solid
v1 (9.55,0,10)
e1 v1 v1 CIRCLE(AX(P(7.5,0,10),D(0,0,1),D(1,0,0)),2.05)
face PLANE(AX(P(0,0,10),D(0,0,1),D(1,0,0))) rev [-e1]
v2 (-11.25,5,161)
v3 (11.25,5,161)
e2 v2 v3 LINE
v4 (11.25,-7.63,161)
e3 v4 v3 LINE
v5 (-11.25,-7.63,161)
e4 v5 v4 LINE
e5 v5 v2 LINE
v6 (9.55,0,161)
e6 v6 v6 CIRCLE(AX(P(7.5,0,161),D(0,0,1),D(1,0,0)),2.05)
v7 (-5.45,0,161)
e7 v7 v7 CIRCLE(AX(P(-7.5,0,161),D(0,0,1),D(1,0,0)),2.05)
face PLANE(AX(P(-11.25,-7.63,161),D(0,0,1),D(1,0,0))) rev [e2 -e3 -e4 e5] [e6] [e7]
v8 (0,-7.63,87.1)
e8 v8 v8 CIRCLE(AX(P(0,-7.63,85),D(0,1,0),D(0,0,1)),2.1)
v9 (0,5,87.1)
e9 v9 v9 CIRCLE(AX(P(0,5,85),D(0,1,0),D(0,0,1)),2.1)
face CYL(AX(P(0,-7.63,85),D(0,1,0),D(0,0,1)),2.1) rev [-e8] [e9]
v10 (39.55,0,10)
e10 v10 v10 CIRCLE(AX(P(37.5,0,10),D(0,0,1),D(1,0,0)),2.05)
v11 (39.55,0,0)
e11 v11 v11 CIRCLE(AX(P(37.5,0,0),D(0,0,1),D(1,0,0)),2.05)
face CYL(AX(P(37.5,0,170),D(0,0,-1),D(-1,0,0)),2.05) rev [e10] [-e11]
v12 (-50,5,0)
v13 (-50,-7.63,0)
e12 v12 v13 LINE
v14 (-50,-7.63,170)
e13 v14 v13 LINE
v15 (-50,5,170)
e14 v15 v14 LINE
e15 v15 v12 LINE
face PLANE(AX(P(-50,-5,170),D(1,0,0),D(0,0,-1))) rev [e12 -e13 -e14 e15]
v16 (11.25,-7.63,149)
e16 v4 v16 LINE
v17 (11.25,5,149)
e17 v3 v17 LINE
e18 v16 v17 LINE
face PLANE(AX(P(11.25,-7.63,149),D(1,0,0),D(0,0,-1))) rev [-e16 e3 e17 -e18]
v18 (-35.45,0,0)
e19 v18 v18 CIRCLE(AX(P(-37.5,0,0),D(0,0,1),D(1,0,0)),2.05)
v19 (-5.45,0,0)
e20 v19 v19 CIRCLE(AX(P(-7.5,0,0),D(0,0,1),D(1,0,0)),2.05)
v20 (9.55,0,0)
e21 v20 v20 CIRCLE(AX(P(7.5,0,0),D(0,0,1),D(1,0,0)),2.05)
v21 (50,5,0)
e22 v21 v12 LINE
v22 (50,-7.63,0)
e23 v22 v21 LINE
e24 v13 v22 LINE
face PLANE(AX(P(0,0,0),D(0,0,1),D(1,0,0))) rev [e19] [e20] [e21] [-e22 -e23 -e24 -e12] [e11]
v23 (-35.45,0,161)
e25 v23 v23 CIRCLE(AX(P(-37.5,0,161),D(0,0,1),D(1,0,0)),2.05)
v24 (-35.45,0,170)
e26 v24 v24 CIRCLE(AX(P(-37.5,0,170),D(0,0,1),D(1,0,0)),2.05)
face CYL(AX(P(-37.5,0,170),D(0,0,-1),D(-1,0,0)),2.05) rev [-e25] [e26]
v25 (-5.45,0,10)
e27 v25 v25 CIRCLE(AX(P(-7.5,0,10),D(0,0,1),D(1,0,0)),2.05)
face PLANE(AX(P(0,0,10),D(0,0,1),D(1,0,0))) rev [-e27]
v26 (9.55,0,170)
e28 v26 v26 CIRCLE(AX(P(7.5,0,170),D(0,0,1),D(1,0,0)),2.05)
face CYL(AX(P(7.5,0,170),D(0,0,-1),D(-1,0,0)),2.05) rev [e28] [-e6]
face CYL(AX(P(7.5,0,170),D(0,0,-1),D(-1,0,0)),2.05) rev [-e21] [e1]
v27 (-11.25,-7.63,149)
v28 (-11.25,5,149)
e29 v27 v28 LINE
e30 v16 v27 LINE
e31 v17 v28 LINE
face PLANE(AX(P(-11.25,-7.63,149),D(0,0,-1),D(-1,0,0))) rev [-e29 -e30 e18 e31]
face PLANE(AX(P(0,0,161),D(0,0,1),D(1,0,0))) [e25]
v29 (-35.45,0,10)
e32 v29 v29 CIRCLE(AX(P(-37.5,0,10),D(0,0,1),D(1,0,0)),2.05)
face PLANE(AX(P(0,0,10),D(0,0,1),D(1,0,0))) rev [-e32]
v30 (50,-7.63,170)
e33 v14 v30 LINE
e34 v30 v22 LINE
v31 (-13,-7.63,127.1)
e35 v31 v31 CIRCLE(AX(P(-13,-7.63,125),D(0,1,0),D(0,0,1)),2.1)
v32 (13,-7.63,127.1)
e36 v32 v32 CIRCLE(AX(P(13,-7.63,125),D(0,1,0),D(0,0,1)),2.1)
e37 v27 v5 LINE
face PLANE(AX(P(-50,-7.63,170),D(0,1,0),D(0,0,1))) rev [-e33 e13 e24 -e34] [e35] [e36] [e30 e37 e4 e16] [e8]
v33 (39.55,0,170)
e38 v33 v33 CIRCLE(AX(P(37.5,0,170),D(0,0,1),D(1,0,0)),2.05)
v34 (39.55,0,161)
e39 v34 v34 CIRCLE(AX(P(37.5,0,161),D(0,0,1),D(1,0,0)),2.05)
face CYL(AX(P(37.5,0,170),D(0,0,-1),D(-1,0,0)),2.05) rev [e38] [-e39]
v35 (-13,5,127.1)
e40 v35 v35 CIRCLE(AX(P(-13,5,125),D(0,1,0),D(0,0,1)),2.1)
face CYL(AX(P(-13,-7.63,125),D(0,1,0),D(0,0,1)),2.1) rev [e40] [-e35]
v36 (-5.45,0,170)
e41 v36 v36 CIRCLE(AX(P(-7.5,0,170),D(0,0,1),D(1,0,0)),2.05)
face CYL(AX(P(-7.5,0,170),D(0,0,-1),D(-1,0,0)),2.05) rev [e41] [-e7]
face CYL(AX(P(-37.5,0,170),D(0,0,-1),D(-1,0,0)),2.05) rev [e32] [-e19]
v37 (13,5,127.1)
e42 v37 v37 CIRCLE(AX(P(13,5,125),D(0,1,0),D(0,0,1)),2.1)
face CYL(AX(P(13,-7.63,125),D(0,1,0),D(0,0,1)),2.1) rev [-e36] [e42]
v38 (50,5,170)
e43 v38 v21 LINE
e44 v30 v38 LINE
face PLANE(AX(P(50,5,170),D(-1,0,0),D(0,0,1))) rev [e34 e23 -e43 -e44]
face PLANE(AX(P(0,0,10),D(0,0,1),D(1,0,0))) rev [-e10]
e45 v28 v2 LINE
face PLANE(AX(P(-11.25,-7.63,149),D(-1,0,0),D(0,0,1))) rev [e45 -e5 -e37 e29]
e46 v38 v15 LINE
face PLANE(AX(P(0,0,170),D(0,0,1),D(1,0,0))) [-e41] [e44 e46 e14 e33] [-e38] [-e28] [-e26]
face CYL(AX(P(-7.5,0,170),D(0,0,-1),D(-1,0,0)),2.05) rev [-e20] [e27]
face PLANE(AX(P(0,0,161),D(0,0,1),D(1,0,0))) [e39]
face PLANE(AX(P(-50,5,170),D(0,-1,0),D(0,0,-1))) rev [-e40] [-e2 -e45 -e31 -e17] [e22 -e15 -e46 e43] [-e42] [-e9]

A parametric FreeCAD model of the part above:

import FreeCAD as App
import Part
import Sketcher

V = App.Vector
Q = App.Units.Quantity

doc = App.newDocument("Part")
body = doc.addObject("PartDesign::Body", "Body")

# Sketch on XY plane
sketch1 = doc.addObject("Sketcher::SketchObject", "Sketch")
body.addObject(sketch1)
sketch1.AttachmentSupport = (doc.XY_Plane, [""])
sketch1.MapMode = "FlatFace"
sketch1.addGeometry(Part.LineSegment(V(50, 5, 0), V(-50, 5, 0)), False)
sketch1.addGeometry(Part.LineSegment(V(-50, 5, 0), V(-50, -7.63, 0)), False)
sketch1.addGeometry(Part.LineSegment(V(-50, -7.63, 0), V(50, -7.63, 0)), False)
sketch1.addGeometry(Part.LineSegment(V(50, -7.63, 0), V(50, 5, 0)), False)
sketch1.addGeometry(Part.Circle(V(37.5, 0, 0), V(0, 0, 1), 2.05), False)
sketch1.addGeometry(Part.Circle(V(7.5, 0, 0), V(0, 0, 1), 2.05), False)
sketch1.addGeometry(Part.Circle(V(-7.5, 0, 0), V(0, 0, 1), 2.05), False)
sketch1.addGeometry(Part.Circle(V(-37.5, 0, 0), V(0, 0, 1), 2.05), False)
sketch1.addConstraint(Sketcher.Constraint("Coincident", 0, 2, 1, 1))
sketch1.addConstraint(Sketcher.Constraint("Coincident", 1, 2, 2, 1))
sketch1.addConstraint(Sketcher.Constraint("Coincident", 2, 2, 3, 1))
sketch1.addConstraint(Sketcher.Constraint("Coincident", 3, 2, 0, 1))
sketch1.addConstraint(Sketcher.Constraint("Horizontal", 0))
sketch1.addConstraint(Sketcher.Constraint("Vertical", 1))
sketch1.addConstraint(Sketcher.Constraint("Horizontal", 2))
sketch1.addConstraint(Sketcher.Constraint("Vertical", 3))
sketch1.addConstraint(Sketcher.Constraint("Equal", 4, 5))
sketch1.addConstraint(Sketcher.Constraint("Equal", 5, 6))
sketch1.addConstraint(Sketcher.Constraint("Equal", 6, 7))
sketch1.addConstraint(Sketcher.Constraint("Symmetric", 5, 3, 6, 3, -1, 1))
sketch1.addConstraint(Sketcher.Constraint("Symmetric", 4, 3, 7, 3, -1, 1))
sketch1.addConstraint(Sketcher.Constraint("PointOnObject", 4, 3, -1))
sketch1.addConstraint(Sketcher.Constraint("PointOnObject", 5, 3, -1))
sketch1.addConstraint(Sketcher.Constraint("Diameter", 4, Q("4.1 mm")))
sketch1.addConstraint(Sketcher.Constraint("DistanceX", 0, 2, 0, 1, Q("100 mm")))
sketch1.addConstraint(Sketcher.Constraint("DistanceX", 0, 2, -1, 1, Q("50 mm")))
sketch1.addConstraint(Sketcher.Constraint("DistanceY", -1, 1, 0, 2, Q("5 mm")))
sketch1.addConstraint(Sketcher.Constraint("DistanceX", 5, 3, 4, 3, Q("30 mm")))
sketch1.addConstraint(Sketcher.Constraint("DistanceX", 6, 3, 5, 3, Q("15 mm")))
sketch1.addConstraint(Sketcher.Constraint("DistanceY", 1, 2, 1, 1, Q("12.63 mm")))
pad1 = doc.addObject("PartDesign::Pad", "Pad")
body.addObject(pad1)
pad1.Profile = sketch1
pad1.Length = 170

# Sketch on XY plane
sketch2 = doc.addObject("Sketcher::SketchObject", "Sketch001")
body.addObject(sketch2)
sketch2.AttachmentSupport = (doc.XY_Plane, [""])
sketch2.MapMode = "FlatFace"
sketch2.AttachmentOffset = App.Placement(V(0, 0, 10), App.Rotation())
sketch2.addGeometry(Part.Circle(V(-37.5, 0, 0), V(0, 0, 1), 2.05), False)
sketch2.addGeometry(Part.Circle(V(-7.5, 0, 0), V(0, 0, 1), 2.05), False)
sketch2.addGeometry(Part.Circle(V(7.5, 0, 0), V(0, 0, 1), 2.05), False)
sketch2.addGeometry(Part.Circle(V(37.5, 0, 0), V(0, 0, 1), 2.05), False)
sketch2.addConstraint(Sketcher.Constraint("Equal", 0, 1))
sketch2.addConstraint(Sketcher.Constraint("Equal", 1, 2))
sketch2.addConstraint(Sketcher.Constraint("Equal", 2, 3))
sketch2.addConstraint(Sketcher.Constraint("Symmetric", 1, 3, 2, 3, -1, 1))
sketch2.addConstraint(Sketcher.Constraint("Symmetric", 0, 3, 3, 3, -1, 1))
sketch2.addConstraint(Sketcher.Constraint("PointOnObject", 0, 3, -1))
sketch2.addConstraint(Sketcher.Constraint("PointOnObject", 1, 3, -1))
sketch2.addConstraint(Sketcher.Constraint("Diameter", 0, Q("4.1 mm")))
sketch2.addConstraint(Sketcher.Constraint("DistanceX", 0, 3, 1, 3, Q("30 mm")))
sketch2.addConstraint(Sketcher.Constraint("DistanceX", 1, 3, 2, 3, Q("15 mm")))
pad2 = doc.addObject("PartDesign::Pad", "Pad001")
body.addObject(pad2)
pad2.Profile = sketch2
pad2.Length = 151

# Sketch on XZ plane
sketch3 = doc.addObject("Sketcher::SketchObject", "Sketch002")
body.addObject(sketch3)
sketch3.AttachmentSupport = (doc.XZ_Plane, [""])
sketch3.MapMode = "FlatFace"
sketch3.AttachmentOffset = App.Placement(V(0, 0, -5), App.Rotation())
sketch3.addGeometry(Part.Circle(V(0, 85, 0), V(0, 0, 1), 2.1), False)
sketch3.addGeometry(Part.Circle(V(13, 125, 0), V(0, 0, 1), 2.1), False)
sketch3.addGeometry(Part.Circle(V(-13, 125, 0), V(0, 0, 1), 2.1), False)
sketch3.addGeometry(Part.LineSegment(V(-11.25, 149, 0), V(-11.25, 161, 0)), False)
sketch3.addGeometry(Part.LineSegment(V(-11.25, 161, 0), V(11.25, 161, 0)), False)
sketch3.addGeometry(Part.LineSegment(V(11.25, 161, 0), V(11.25, 149, 0)), False)
sketch3.addGeometry(Part.LineSegment(V(11.25, 149, 0), V(-11.25, 149, 0)), False)
sketch3.addConstraint(Sketcher.Constraint("Coincident", 3, 2, 4, 1))
sketch3.addConstraint(Sketcher.Constraint("Coincident", 4, 2, 5, 1))
sketch3.addConstraint(Sketcher.Constraint("Coincident", 5, 2, 6, 1))
sketch3.addConstraint(Sketcher.Constraint("Coincident", 6, 2, 3, 1))
sketch3.addConstraint(Sketcher.Constraint("Vertical", 3))
sketch3.addConstraint(Sketcher.Constraint("Horizontal", 4))
sketch3.addConstraint(Sketcher.Constraint("Vertical", 5))
sketch3.addConstraint(Sketcher.Constraint("Horizontal", 6))
sketch3.addConstraint(Sketcher.Constraint("Equal", 0, 1))
sketch3.addConstraint(Sketcher.Constraint("Equal", 1, 2))
sketch3.addConstraint(Sketcher.Constraint("Symmetric", 1, 3, 2, 3, -2))
sketch3.addConstraint(Sketcher.Constraint("PointOnObject", 0, 3, -2))
sketch3.addConstraint(Sketcher.Constraint("Diameter", 0, Q("4.2 mm")))
sketch3.addConstraint(Sketcher.Constraint("DistanceY", 3, 1, 3, 2, Q("12 mm")))
sketch3.addConstraint(Sketcher.Constraint("DistanceX", 4, 1, 4, 2, Q("22.5 mm")))
sketch3.addConstraint(Sketcher.Constraint("DistanceY", -1, 1, 0, 3, Q("85 mm")))
sketch3.addConstraint(Sketcher.Constraint("DistanceX", -1, 1, 1, 3, Q("13 mm")))
sketch3.addConstraint(Sketcher.Constraint("DistanceY", -1, 1, 1, 3, Q("125 mm")))
sketch3.addConstraint(Sketcher.Constraint("DistanceY", -1, 1, 3, 2, Q("161 mm")))
sketch3.addConstraint(Sketcher.Constraint("DistanceX", 3, 2, -1, 1, Q("11.25 mm")))
pocket1 = doc.addObject("PartDesign::Pocket", "Pocket")
body.addObject(pocket1)
pocket1.Profile = sketch3
pocket1.Type = "ThroughAll"
pocket1.Reversed = True

doc.recompute()
